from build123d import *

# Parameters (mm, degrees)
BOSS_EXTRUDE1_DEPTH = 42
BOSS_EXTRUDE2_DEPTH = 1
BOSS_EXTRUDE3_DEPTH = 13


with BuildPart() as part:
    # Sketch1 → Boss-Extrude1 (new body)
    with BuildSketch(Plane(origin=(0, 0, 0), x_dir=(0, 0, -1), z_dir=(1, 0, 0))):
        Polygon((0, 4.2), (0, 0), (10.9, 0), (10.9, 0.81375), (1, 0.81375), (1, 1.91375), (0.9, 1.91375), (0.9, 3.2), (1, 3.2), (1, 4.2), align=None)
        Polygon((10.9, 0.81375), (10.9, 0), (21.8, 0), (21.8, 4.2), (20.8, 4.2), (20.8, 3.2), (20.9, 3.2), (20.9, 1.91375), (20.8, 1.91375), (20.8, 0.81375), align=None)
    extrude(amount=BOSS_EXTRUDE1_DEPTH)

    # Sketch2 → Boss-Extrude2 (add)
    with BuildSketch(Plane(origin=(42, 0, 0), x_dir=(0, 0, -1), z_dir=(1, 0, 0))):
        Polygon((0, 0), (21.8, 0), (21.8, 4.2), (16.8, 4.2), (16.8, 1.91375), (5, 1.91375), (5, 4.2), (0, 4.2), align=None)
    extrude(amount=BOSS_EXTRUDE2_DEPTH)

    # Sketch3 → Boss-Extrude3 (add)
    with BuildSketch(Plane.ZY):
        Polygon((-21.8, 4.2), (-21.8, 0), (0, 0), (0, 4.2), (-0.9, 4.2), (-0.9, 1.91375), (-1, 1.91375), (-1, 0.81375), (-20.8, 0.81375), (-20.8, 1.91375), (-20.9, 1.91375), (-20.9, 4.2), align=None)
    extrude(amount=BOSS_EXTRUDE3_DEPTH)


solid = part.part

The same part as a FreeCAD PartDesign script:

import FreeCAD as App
import Part
import Sketcher

V = App.Vector

doc = App.newDocument("Part")
params = doc.addObject("Spreadsheet::Sheet", "Params")
for row, (alias, value) in enumerate([
    ("sketch1_width", "1 mm"),
    ("sketch1_width2", "4.2 mm"),
    ("sketch1_width3", "1.1 mm"),
    ("sketch1_height", "21.8 mm"),
    ("sketch1_height2", "0.1 mm"),
    ("pad1_length", "42 mm"),
    ("sketch2_height", "5 mm"),
    ("sketch2_width", "4.2 mm"),
    ("sketch2_height2", "21.8 mm"),
    ("pad2_length", "1 mm"),
    ("sketch3_width", "4.2 mm"),
    ("sketch3_width2", "1.1 mm"),
    ("sketch3_height", "21.8 mm"),
    ("sketch3_height2", "0.9 mm"),
    ("sketch3_height3", "0.1 mm"),
    ("pad3_length", "13 mm"),
], start=1):
    params.set(f"A{row}", alias)
    params.set(f"B{row}", "=" + value)
    params.setAlias(f"B{row}", alias)

body = doc.addObject("PartDesign::Body", "Body")

# Sketch on YZ plane
sketch1 = doc.addObject("Sketcher::SketchObject", "Sketch")
body.addObject(sketch1)
sketch1.AttachmentSupport = (doc.YZ_Plane, [""])
sketch1.MapMode = "FlatFace"
sketch1.addGeometry([
    Part.LineSegment(V(4.2, 0, 0), V(0, 0, 0)),  # 0
    Part.LineSegment(V(0, 0, 0), V(0, -21.8, 0)),  # 1
    Part.LineSegment(V(0, -21.8, 0), V(4.2, -21.8, 0)),  # 2
    Part.LineSegment(V(4.2, -21.8, 0), V(4.2, -20.8, 0)),  # 3
    Part.LineSegment(V(4.2, -20.8, 0), V(3.2, -20.8, 0)),  # 4
    Part.LineSegment(V(3.2, -20.8, 0), V(3.2, -20.9, 0)),  # 5
    Part.LineSegment(V(3.2, -20.9, 0), V(1.91, -20.9, 0)),  # 6
    Part.LineSegment(V(1.91, -20.9, 0), V(1.91, -20.8, 0)),  # 7
    Part.LineSegment(V(1.91, -20.8, 0), V(0.81, -20.8, 0)),  # 8
    Part.LineSegment(V(0.81, -20.8, 0), V(0.81, -1, 0)),  # 9
    Part.LineSegment(V(0.81, -1, 0), V(1.91, -1, 0)),  # 10
    Part.LineSegment(V(1.91, -1, 0), V(1.91, -0.9, 0)),  # 11
    Part.LineSegment(V(1.91, -0.9, 0), V(3.2, -0.9, 0)),  # 12
    Part.LineSegment(V(3.2, -0.9, 0), V(3.2, -1, 0)),  # 13
    Part.LineSegment(V(3.2, -1, 0), V(4.2, -1, 0)),  # 14
    Part.LineSegment(V(4.2, -1, 0), V(4.2, 0, 0)),  # 15
], False)
sketch1.addConstraint([
    Sketcher.Constraint("Coincident", 0, 2, 1, 1),
    Sketcher.Constraint("Coincident", 1, 2, 2, 1),
    Sketcher.Constraint("Coincident", 2, 2, 3, 1),
    Sketcher.Constraint("Coincident", 3, 2, 4, 1),
    Sketcher.Constraint("Coincident", 4, 2, 5, 1),
    Sketcher.Constraint("Coincident", 5, 2, 6, 1),
    Sketcher.Constraint("Coincident", 6, 2, 7, 1),
    Sketcher.Constraint("Coincident", 7, 2, 8, 1),
    Sketcher.Constraint("Coincident", 8, 2, 9, 1),
    Sketcher.Constraint("Coincident", 9, 2, 10, 1),
    Sketcher.Constraint("Coincident", 10, 2, 11, 1),
    Sketcher.Constraint("Coincident", 11, 2, 12, 1),
    Sketcher.Constraint("Coincident", 12, 2, 13, 1),
    Sketcher.Constraint("Coincident", 13, 2, 14, 1),
    Sketcher.Constraint("Coincident", 14, 2, 15, 1),
    Sketcher.Constraint("Coincident", 15, 2, 0, 1),
    Sketcher.Constraint("Horizontal", 0),
    Sketcher.Constraint("Vertical", 1),
    Sketcher.Constraint("Horizontal", 2),
    Sketcher.Constraint("Vertical", 3),
    Sketcher.Constraint("Horizontal", 4),
    Sketcher.Constraint("Vertical", 5),
    Sketcher.Constraint("Horizontal", 6),
    Sketcher.Constraint("Vertical", 7),
    Sketcher.Constraint("Horizontal", 8),
    Sketcher.Constraint("Vertical", 9),
    Sketcher.Constraint("Horizontal", 10),
    Sketcher.Constraint("Vertical", 11),
    Sketcher.Constraint("Horizontal", 12),
    Sketcher.Constraint("Vertical", 13),
    Sketcher.Constraint("Horizontal", 14),
    Sketcher.Constraint("Vertical", 15),
    Sketcher.Constraint("Coincident", 0, 2, -1, 1),
    Sketcher.Constraint("Horizontal", 4, 2, 7, 2),
    Sketcher.Constraint("Horizontal", 10, 2, 13, 2),
    Sketcher.Constraint("Vertical", 7, 2, 10, 2),
    Sketcher.Constraint("Vertical", 5, 2, 12, 2),
    Sketcher.Constraint("Vertical", 3, 2, 14, 2),
    Sketcher.Constraint("Equal", 14, 3),
    Sketcher.Constraint("Equal", 7, 11),
    Sketcher.Constraint("Equal", 3, 15),
    Sketcher.Constraint("DistanceX", 4, 2, 4, 1, 1.0),
    Sketcher.Constraint("DistanceX", 0, 2, 0, 1, 4.2),
    Sketcher.Constraint("DistanceX", 8, 2, 8, 1, 1.1),
    Sketcher.Constraint("DistanceY", 1, 2, 1, 1, 21.8),
    Sketcher.Constraint("DistanceY", 5, 2, 5, 1, 0.1),
    Sketcher.Constraint("DistanceX", 6, 2, 6, 1, 1.28625),
])
sketch1.setExpression("Constraints[41]", "Params.sketch1_width")
sketch1.setExpression("Constraints[42]", "Params.sketch1_width2")
sketch1.setExpression("Constraints[43]", "Params.sketch1_width3")
sketch1.setExpression("Constraints[44]", "Params.sketch1_height")
sketch1.setExpression("Constraints[45]", "Params.sketch1_height2")
pad1 = doc.addObject("PartDesign::Pad", "Pad")
body.addObject(pad1)
pad1.Profile = sketch1
pad1.setExpression("Length", "Params.pad1_length")

# Sketch on YZ plane
sketch2 = doc.addObject("Sketcher::SketchObject", "Sketch001")
body.addObject(sketch2)
sketch2.AttachmentSupport = (doc.YZ_Plane, [""])
sketch2.MapMode = "FlatFace"
sketch2.AttachmentOffset = App.Placement(V(0, 0, 42), App.Rotation())
sketch2.addGeometry([
    Part.LineSegment(V(0, 0, 0), V(0, -21.8, 0)),  # 0
    Part.LineSegment(V(0, -21.8, 0), V(4.2, -21.8, 0)),  # 1
    Part.LineSegment(V(4.2, -21.8, 0), V(4.2, -16.8, 0)),  # 2
    Part.LineSegment(V(4.2, -16.8, 0), V(1.9, -16.8, 0)),  # 3
    Part.LineSegment(V(1.9, -16.8, 0), V(1.9, -5, 0)),  # 4
    Part.LineSegment(V(1.9, -5, 0), V(4.2, -5, 0)),  # 5
    Part.LineSegment(V(4.2, -5, 0), V(4.2, 0, 0)),  # 6
    Part.LineSegment(V(4.2, 0, 0), V(0, 0, 0)),  # 7
], False)
sketch2.addConstraint([
    Sketcher.Constraint("Coincident", 0, 2, 1, 1),
    Sketcher.Constraint("Coincident", 1, 2, 2, 1),
    Sketcher.Constraint("Coincident", 2, 2, 3, 1),
    Sketcher.Constraint("Coincident", 3, 2, 4, 1),
    Sketcher.Constraint("Coincident", 4, 2, 5, 1),
    Sketcher.Constraint("Coincident", 5, 2, 6, 1),
    Sketcher.Constraint("Coincident", 6, 2, 7, 1),
    Sketcher.Constraint("Coincident", 7, 2, 0, 1),
    Sketcher.Constraint("Vertical", 0),
    Sketcher.Constraint("Horizontal", 1),
    Sketcher.Constraint("Vertical", 2),
    Sketcher.Constraint("Horizontal", 3),
    Sketcher.Constraint("Vertical", 4),
    Sketcher.Constraint("Horizontal", 5),
    Sketcher.Constraint("Vertical", 6),
    Sketcher.Constraint("Horizontal", 7),
    Sketcher.Constraint("Coincident", 7, 2, -1, 1),
    Sketcher.Constraint("Vertical", 2, 2, 5, 2),
    Sketcher.Constraint("Equal", 2, 6),
    Sketcher.Constraint("DistanceY", 2, 1, 2, 2, 5.0),
    Sketcher.Constraint("DistanceX", 1, 1, 1, 2, 4.2),
    Sketcher.Constraint("DistanceY", 0, 2, 0, 1, 21.8),
    Sketcher.Constraint("DistanceX", 3, 2, 3, 1, 2.28625),
])
sketch2.setExpression("Constraints[19]", "Params.sketch2_height")
sketch2.setExpression("Constraints[20]", "Params.sketch2_width")
sketch2.setExpression("Constraints[21]", "Params.sketch2_height2")
pad2 = doc.addObject("PartDesign::Pad", "Pad001")
body.addObject(pad2)
pad2.Profile = sketch2
pad2.setExpression("Length", "Params.pad2_length")

# Sketch on YZ plane
sketch3 = doc.addObject("Sketcher::SketchObject", "Sketch002")
body.addObject(sketch3)
sketch3.AttachmentSupport = (doc.YZ_Plane, [""])
sketch3.MapMode = "FlatFace"
sketch3.addGeometry([
    Part.LineSegment(V(4.2, -21.8, 0), V(0, -21.8, 0)),  # 0
    Part.LineSegment(V(0, -21.8, 0), V(0, 0, 0)),  # 1
    Part.LineSegment(V(0, 0, 0), V(4.2, 0, 0)),  # 2
    Part.LineSegment(V(4.2, 0, 0), V(4.2, -0.9, 0)),  # 3
    Part.LineSegment(V(4.2, -0.9, 0), V(1.91, -0.9, 0)),  # 4
    Part.LineSegment(V(1.91, -0.9, 0), V(1.91, -1, 0)),  # 5
    Part.LineSegment(V(1.91, -1, 0), V(0.81, -1, 0)),  # 6
    Part.LineSegment(V(0.81, -1, 0), V(0.81, -20.8, 0)),  # 7
    Part.LineSegment(V(0.81, -20.8, 0), V(1.91, -20.8, 0)),  # 8
    Part.LineSegment(V(1.91, -20.8, 0), V(1.91, -20.9, 0)),  # 9
    Part.LineSegment(V(1.91, -20.9, 0), V(4.2, -20.9, 0)),  # 10
    Part.LineSegment(V(4.2, -20.9, 0), V(4.2, -21.8, 0)),  # 11
], False)
sketch3.addConstraint([
    Sketcher.Constraint("Coincident", 0, 2, 1, 1),
    Sketcher.Constraint("Coincident", 1, 2, 2, 1),
    Sketcher.Constraint("Coincident", 2, 2, 3, 1),
    Sketcher.Constraint("Coincident", 3, 2, 4, 1),
    Sketcher.Constraint("Coincident", 4, 2, 5, 1),
    Sketcher.Constraint("Coincident", 5, 2, 6, 1),
    Sketcher.Constraint("Coincident", 6, 2, 7, 1),
    Sketcher.Constraint("Coincident", 7, 2, 8, 1),
    Sketcher.Constraint("Coincident", 8, 2, 9, 1),
    Sketcher.Constraint("Coincident", 9, 2, 10, 1),
    Sketcher.Constraint("Coincident", 10, 2, 11, 1),
    Sketcher.Constraint("Coincident", 11, 2, 0, 1),
    Sketcher.Constraint("Horizontal", 0),
    Sketcher.Constraint("Vertical", 1),
    Sketcher.Constraint("Horizontal", 2),
    Sketcher.Constraint("Vertical", 3),
    Sketcher.Constraint("Horizontal", 4),
    Sketcher.Constraint("Vertical", 5),
    Sketcher.Constraint("Horizontal", 6),
    Sketcher.Constraint("Vertical", 7),
    Sketcher.Constraint("Horizontal", 8),
    Sketcher.Constraint("Vertical", 9),
    Sketcher.Constraint("Horizontal", 10),
    Sketcher.Constraint("Vertical", 11),
    Sketcher.Constraint("Coincident", 1, 2, -1, 1),
    Sketcher.Constraint("Vertical", 5, 2, 8, 2),
    Sketcher.Constraint("Vertical", 3, 2, 10, 2),
    Sketcher.Constraint("Equal", 5, 9),
    Sketcher.Constraint("Equal", 3, 11),
    Sketcher.Constraint("DistanceX", 0, 2, 0, 1, 4.2),
    Sketcher.Constraint("DistanceX", 6, 2, 6, 1, 1.1),
    Sketcher.Constraint("DistanceY", 1, 1, 1, 2, 21.8),
    Sketcher.Constraint("DistanceY", 3, 2, 3, 1, 0.9),
    Sketcher.Constraint("DistanceY", 5, 2, 5, 1, 0.1),
    Sketcher.Constraint("DistanceX", 4, 2, 4, 1, 2.28625),
])
sketch3.setExpression("Constraints[29]", "Params.sketch3_width")
sketch3.setExpression("Constraints[30]", "Params.sketch3_width2")
sketch3.setExpression("Constraints[31]", "Params.sketch3_height")
sketch3.setExpression("Constraints[32]", "Params.sketch3_height2")
sketch3.setExpression("Constraints[33]", "Params.sketch3_height3")
pad3 = doc.addObject("PartDesign::Pad", "Pad002")
body.addObject(pad3)
pad3.Profile = sketch3
pad3.setExpression("Length", "Params.pad3_length")
pad3.Reversed = True

doc.recompute()
